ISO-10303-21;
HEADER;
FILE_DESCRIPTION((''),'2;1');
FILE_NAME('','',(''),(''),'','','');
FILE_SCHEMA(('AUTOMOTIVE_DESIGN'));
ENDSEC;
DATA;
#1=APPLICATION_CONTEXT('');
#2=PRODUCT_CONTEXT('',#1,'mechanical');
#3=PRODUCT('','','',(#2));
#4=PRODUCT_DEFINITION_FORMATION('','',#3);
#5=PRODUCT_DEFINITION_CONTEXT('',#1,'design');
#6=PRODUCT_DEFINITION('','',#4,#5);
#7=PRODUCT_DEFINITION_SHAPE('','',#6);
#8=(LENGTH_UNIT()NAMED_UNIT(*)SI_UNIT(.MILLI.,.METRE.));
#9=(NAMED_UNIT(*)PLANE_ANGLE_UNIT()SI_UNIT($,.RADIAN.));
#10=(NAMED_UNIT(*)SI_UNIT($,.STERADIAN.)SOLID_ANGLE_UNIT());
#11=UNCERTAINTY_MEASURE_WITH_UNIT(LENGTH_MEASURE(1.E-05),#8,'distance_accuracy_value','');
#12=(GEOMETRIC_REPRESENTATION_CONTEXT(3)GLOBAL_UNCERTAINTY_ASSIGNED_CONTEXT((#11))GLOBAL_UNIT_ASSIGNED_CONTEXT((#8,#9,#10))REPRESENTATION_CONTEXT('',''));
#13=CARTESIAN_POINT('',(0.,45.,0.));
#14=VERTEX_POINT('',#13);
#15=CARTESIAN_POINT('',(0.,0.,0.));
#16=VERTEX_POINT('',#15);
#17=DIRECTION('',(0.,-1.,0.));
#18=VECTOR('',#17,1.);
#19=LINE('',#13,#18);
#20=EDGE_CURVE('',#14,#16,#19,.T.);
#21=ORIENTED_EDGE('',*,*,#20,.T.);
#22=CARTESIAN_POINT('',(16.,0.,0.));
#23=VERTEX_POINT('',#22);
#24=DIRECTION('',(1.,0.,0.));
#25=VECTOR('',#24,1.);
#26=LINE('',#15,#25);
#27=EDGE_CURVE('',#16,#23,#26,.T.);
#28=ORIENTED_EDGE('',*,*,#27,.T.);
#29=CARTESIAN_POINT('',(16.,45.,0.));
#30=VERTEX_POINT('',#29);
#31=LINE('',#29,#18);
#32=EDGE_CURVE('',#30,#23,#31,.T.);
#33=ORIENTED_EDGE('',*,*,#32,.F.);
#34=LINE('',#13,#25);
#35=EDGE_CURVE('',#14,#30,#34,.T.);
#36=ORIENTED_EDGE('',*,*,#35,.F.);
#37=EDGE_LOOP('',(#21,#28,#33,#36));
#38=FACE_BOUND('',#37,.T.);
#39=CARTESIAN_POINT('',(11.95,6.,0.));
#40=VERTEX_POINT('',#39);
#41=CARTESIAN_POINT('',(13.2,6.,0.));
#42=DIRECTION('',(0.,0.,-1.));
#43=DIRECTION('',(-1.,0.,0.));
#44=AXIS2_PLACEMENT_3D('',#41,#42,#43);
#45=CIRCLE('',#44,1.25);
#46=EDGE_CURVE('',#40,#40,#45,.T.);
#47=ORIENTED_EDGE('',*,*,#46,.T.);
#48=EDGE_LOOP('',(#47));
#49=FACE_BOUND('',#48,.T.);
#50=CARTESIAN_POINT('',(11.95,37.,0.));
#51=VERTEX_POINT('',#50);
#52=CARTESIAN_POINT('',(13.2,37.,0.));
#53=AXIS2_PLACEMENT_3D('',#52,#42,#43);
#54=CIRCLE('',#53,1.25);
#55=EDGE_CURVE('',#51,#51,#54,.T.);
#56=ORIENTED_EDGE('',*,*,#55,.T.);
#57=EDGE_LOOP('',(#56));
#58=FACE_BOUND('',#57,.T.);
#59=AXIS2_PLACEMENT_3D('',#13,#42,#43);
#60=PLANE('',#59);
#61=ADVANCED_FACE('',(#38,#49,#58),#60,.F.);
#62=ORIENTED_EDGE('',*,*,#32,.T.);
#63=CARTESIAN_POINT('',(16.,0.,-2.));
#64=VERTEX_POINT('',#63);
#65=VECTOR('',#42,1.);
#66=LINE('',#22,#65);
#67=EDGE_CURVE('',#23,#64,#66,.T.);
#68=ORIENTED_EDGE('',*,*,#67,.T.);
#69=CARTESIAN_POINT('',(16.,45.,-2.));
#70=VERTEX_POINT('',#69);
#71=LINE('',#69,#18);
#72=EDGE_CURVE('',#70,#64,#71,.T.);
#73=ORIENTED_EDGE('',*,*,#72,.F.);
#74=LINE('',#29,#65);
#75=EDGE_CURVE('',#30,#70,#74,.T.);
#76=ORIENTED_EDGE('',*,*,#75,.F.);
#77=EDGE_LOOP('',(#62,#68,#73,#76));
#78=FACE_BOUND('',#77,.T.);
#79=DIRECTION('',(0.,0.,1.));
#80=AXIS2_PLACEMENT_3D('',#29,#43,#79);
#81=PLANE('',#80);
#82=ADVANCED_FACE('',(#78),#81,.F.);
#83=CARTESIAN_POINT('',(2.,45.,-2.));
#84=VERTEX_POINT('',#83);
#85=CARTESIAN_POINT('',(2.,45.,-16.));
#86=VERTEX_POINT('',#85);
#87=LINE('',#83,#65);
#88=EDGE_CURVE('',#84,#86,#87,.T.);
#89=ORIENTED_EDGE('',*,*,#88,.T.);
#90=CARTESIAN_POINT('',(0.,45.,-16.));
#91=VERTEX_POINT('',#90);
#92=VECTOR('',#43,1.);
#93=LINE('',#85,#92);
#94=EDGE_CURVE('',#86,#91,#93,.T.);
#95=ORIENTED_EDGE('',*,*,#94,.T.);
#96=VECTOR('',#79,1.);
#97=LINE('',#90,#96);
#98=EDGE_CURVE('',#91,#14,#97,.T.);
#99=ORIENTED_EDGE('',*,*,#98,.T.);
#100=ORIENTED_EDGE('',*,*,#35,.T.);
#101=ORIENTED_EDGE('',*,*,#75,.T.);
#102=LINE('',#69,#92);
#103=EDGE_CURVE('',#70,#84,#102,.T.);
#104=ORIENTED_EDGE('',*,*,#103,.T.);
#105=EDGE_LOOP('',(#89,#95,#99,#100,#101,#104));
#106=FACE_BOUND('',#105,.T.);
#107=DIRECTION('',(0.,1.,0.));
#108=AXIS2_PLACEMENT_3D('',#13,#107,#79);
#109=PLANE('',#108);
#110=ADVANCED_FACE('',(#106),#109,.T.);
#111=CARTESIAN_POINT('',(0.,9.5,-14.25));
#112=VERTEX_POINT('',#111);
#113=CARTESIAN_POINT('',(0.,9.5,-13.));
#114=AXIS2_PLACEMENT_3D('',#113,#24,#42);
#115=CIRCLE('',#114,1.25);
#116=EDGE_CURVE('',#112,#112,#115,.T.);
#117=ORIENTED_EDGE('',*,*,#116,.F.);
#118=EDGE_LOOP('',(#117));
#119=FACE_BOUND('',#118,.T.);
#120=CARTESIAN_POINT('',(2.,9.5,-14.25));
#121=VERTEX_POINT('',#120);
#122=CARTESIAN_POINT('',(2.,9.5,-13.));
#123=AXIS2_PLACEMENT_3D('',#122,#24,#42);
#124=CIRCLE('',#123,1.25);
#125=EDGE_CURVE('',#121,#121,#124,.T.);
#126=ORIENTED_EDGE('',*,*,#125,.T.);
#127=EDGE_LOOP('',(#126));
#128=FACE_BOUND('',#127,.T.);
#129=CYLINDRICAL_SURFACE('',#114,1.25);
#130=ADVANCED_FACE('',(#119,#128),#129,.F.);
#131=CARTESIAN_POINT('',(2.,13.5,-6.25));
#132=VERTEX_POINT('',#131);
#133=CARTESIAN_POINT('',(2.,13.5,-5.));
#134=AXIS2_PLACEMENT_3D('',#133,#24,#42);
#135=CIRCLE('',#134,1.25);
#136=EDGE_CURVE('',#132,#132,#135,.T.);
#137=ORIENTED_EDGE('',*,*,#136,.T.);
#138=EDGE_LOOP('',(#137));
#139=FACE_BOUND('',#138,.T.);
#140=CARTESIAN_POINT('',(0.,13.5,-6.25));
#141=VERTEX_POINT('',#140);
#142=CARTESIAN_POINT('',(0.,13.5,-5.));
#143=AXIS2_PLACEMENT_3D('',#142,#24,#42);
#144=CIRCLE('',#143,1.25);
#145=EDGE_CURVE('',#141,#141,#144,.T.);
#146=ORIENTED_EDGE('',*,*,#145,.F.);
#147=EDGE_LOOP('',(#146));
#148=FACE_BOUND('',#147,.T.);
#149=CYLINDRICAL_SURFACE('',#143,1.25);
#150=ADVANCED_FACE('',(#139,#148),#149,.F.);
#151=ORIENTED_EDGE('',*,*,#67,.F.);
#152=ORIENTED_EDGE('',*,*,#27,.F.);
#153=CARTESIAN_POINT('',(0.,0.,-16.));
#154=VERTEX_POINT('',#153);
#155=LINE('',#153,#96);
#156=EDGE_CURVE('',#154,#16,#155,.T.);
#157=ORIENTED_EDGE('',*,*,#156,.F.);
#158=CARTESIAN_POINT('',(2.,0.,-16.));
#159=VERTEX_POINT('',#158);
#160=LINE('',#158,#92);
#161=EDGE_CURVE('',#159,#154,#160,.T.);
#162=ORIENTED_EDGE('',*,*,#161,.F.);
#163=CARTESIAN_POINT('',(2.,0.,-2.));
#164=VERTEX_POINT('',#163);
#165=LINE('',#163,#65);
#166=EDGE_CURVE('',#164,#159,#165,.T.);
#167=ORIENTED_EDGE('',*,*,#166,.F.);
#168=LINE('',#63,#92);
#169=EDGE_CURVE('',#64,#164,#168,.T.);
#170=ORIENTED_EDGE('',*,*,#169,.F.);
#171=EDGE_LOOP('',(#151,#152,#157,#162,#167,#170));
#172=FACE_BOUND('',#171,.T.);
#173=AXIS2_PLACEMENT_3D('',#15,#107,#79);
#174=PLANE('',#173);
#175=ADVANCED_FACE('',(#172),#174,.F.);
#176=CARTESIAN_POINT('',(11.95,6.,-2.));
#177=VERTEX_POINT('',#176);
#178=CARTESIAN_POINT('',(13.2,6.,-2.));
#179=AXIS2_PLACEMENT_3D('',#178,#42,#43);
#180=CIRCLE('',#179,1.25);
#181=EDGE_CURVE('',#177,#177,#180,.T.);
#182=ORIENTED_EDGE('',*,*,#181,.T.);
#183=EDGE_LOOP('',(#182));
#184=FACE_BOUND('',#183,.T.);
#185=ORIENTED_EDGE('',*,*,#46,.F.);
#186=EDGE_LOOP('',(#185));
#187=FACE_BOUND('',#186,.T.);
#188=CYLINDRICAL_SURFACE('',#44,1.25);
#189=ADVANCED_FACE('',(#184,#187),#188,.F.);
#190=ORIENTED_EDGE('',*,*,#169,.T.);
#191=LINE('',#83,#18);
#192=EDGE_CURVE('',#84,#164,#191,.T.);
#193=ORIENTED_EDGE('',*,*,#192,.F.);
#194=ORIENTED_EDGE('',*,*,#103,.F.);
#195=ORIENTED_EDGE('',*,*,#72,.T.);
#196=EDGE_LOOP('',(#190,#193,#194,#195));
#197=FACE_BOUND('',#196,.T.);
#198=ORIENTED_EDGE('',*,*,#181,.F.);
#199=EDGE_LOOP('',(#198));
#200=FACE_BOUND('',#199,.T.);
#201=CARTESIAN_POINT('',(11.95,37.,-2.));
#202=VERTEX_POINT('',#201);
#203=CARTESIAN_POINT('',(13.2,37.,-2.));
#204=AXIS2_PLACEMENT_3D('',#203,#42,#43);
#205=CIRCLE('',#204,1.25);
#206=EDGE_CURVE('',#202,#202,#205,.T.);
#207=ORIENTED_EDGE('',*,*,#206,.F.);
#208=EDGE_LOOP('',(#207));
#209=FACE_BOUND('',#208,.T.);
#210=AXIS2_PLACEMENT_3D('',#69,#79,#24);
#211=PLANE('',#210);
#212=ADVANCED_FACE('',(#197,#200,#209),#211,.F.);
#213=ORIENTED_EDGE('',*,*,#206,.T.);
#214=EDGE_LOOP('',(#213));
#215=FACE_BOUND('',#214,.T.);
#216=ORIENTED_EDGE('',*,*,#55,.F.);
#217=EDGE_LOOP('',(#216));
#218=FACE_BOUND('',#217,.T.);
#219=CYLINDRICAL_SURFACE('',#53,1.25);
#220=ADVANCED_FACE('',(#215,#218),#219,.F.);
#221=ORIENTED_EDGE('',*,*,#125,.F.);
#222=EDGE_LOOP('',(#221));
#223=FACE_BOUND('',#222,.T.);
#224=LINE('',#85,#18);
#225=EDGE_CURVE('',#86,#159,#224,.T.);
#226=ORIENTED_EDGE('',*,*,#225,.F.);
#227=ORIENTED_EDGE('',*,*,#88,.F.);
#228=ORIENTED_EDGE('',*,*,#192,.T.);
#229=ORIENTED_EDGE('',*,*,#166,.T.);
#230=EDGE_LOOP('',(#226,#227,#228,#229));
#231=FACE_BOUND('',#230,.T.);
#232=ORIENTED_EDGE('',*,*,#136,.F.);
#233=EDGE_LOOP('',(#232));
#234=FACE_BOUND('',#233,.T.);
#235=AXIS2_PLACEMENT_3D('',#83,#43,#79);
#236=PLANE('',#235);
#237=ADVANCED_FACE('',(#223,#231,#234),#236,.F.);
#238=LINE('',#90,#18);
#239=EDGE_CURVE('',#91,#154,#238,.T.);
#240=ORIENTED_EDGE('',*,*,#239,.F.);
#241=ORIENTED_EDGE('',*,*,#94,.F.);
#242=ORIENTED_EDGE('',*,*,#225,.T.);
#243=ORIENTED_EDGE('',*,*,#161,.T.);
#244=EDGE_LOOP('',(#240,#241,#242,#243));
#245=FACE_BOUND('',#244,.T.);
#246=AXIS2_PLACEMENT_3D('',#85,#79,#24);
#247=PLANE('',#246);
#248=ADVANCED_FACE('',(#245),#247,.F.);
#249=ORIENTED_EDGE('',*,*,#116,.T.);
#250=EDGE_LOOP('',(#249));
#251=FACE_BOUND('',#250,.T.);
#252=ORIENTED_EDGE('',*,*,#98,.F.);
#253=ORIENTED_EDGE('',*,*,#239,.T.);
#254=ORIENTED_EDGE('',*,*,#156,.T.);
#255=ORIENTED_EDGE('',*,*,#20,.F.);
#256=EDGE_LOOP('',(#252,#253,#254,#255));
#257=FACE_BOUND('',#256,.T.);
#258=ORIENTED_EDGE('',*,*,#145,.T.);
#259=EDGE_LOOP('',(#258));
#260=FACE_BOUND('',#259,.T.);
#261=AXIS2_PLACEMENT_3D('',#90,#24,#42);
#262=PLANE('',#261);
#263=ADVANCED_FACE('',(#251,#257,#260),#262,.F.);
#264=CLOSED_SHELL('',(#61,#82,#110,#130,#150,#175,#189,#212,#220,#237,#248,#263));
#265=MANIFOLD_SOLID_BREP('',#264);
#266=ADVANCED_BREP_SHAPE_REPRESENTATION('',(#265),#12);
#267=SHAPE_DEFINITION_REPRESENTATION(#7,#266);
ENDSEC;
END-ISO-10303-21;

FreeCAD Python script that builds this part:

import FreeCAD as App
import Part
import Sketcher

V = App.Vector

doc = App.newDocument("Part")
body = doc.addObject("PartDesign::Body", "Body")

# Sketch on XZ plane
sketch1 = body.newObject("Sketcher::SketchObject", "Sketch")
sketch1.AttachmentSupport = (doc.getObject("XZ_Plane"), [""])
sketch1.MapMode = "FlatFace"
sketch1.addGeometry(Part.LineSegment(V(0, 0, 0), V(16, 0, 0)), False)
sketch1.addGeometry(Part.LineSegment(V(16, 0, 0), V(16, -2, 0)), False)
sketch1.addGeometry(Part.LineSegment(V(16, -2, 0), V(2, -2, 0)), False)
sketch1.addGeometry(Part.LineSegment(V(2, -2, 0), V(2, -16, 0)), False)
sketch1.addGeometry(Part.LineSegment(V(2, -16, 0), V(0, -16, 0)), False)
sketch1.addGeometry(Part.LineSegment(V(0, -16, 0), V(0, 0, 0)), False)
sketch1.addConstraint(Sketcher.Constraint("Coincident", 0, 2, 1, 1))
sketch1.addConstraint(Sketcher.Constraint("Coincident", 1, 2, 2, 1))
sketch1.addConstraint(Sketcher.Constraint("Coincident", 2, 2, 3, 1))
sketch1.addConstraint(Sketcher.Constraint("Coincident", 3, 2, 4, 1))
sketch1.addConstraint(Sketcher.Constraint("Coincident", 4, 2, 5, 1))
sketch1.addConstraint(Sketcher.Constraint("Coincident", 5, 2, 0, 1))
sketch1.addConstraint(Sketcher.Constraint("Horizontal", 0))
sketch1.addConstraint(Sketcher.Constraint("Vertical", 1))
sketch1.addConstraint(Sketcher.Constraint("Horizontal", 2))
sketch1.addConstraint(Sketcher.Constraint("Vertical", 3))
sketch1.addConstraint(Sketcher.Constraint("Horizontal", 4))
sketch1.addConstraint(Sketcher.Constraint("Vertical", 5))
sketch1.addConstraint(Sketcher.Constraint("Coincident", 5, 2, -1, 1))
sketch1.addConstraint(Sketcher.Constraint("Equal", 4, 1))
sketch1.addConstraint(Sketcher.Constraint("Equal", 2, 3))
sketch1.addConstraint(Sketcher.Constraint("DistanceX", 0, 1, 0, 2, 16.0))
sketch1.addConstraint(Sketcher.Constraint("DistanceX", 2, 2, 2, 1, 14.0))
pad1 = body.newObject("PartDesign::Pad", "Pad")
pad1.Profile = sketch1
pad1.Length = 45
pad1.Reversed = True

# Sketch on XY plane
sketch2 = body.newObject("Sketcher::SketchObject", "Sketch001")
sketch2.AttachmentSupport = (doc.getObject("XY_Plane"), [""])
sketch2.MapMode = "FlatFace"
sketch2.AttachmentOffset = App.Placement(V(0, 0, -2), App.Rotation())
sketch2.addGeometry(Part.Circle(V(13.2, 37, 0), V(0, 0, 1), 1.2), False)
sketch2.addGeometry(Part.Circle(V(13.2, 6, 0), V(0, 0, 1), 1.2), False)
sketch2.addConstraint(Sketcher.Constraint("Equal", 0, 1))
sketch2.addConstraint(Sketcher.Constraint("Vertical", 0, 3, 1, 3))
sketch2.addConstraint(Sketcher.Constraint("Diameter", 0, 2.5))
sketch2.addConstraint(Sketcher.Constraint("DistanceY", -1, 1, 0, 3, 37.0))
sketch2.addConstraint(Sketcher.Constraint("DistanceY", -1, 1, 1, 3, 6.0))
sketch2.addConstraint(Sketcher.Constraint("DistanceX", -1, 1, 0, 3, 13.2))
pocket1 = body.newObject("PartDesign::Pocket", "Pocket")
pocket1.Profile = sketch2
pocket1.Type = "ThroughAll"
pocket1.Reversed = True

# Sketch on YZ plane
sketch3 = body.newObject("Sketcher::SketchObject", "Sketch002")
sketch3.AttachmentSupport = (doc.getObject("YZ_Plane"), [""])
sketch3.MapMode = "FlatFace"
sketch3.AttachmentOffset = App.Placement(V(0, 0, 2), App.Rotation())
sketch3.addGeometry(Part.Circle(V(9.5, -13, 0), V(0, 0, 1), 1.2), False)
sketch3.addGeometry(Part.Circle(V(13.5, -5, 0), V(0, 0, 1), 1.2), False)
sketch3.addConstraint(Sketcher.Constraint("Equal", 0, 1))
sketch3.addConstraint(Sketcher.Constraint("Diameter", 0, 2.5))
sketch3.addConstraint(Sketcher.Constraint("DistanceY", 0, 3, -1, 1, 13.0))
sketch3.addConstraint(Sketcher.Constraint("DistanceY", 1, 3, -1, 1, 5.0))
sketch3.addConstraint(Sketcher.Constraint("DistanceX", 0, 3, 1, 3, 4.0))
sketch3.addConstraint(Sketcher.Constraint("DistanceX", -1, 1, 0, 3, 9.5))
pocket2 = body.newObject("PartDesign::Pocket", "Pocket001")
pocket2.Profile = sketch3
pocket2.Type = "ThroughAll"

doc.recompute()
